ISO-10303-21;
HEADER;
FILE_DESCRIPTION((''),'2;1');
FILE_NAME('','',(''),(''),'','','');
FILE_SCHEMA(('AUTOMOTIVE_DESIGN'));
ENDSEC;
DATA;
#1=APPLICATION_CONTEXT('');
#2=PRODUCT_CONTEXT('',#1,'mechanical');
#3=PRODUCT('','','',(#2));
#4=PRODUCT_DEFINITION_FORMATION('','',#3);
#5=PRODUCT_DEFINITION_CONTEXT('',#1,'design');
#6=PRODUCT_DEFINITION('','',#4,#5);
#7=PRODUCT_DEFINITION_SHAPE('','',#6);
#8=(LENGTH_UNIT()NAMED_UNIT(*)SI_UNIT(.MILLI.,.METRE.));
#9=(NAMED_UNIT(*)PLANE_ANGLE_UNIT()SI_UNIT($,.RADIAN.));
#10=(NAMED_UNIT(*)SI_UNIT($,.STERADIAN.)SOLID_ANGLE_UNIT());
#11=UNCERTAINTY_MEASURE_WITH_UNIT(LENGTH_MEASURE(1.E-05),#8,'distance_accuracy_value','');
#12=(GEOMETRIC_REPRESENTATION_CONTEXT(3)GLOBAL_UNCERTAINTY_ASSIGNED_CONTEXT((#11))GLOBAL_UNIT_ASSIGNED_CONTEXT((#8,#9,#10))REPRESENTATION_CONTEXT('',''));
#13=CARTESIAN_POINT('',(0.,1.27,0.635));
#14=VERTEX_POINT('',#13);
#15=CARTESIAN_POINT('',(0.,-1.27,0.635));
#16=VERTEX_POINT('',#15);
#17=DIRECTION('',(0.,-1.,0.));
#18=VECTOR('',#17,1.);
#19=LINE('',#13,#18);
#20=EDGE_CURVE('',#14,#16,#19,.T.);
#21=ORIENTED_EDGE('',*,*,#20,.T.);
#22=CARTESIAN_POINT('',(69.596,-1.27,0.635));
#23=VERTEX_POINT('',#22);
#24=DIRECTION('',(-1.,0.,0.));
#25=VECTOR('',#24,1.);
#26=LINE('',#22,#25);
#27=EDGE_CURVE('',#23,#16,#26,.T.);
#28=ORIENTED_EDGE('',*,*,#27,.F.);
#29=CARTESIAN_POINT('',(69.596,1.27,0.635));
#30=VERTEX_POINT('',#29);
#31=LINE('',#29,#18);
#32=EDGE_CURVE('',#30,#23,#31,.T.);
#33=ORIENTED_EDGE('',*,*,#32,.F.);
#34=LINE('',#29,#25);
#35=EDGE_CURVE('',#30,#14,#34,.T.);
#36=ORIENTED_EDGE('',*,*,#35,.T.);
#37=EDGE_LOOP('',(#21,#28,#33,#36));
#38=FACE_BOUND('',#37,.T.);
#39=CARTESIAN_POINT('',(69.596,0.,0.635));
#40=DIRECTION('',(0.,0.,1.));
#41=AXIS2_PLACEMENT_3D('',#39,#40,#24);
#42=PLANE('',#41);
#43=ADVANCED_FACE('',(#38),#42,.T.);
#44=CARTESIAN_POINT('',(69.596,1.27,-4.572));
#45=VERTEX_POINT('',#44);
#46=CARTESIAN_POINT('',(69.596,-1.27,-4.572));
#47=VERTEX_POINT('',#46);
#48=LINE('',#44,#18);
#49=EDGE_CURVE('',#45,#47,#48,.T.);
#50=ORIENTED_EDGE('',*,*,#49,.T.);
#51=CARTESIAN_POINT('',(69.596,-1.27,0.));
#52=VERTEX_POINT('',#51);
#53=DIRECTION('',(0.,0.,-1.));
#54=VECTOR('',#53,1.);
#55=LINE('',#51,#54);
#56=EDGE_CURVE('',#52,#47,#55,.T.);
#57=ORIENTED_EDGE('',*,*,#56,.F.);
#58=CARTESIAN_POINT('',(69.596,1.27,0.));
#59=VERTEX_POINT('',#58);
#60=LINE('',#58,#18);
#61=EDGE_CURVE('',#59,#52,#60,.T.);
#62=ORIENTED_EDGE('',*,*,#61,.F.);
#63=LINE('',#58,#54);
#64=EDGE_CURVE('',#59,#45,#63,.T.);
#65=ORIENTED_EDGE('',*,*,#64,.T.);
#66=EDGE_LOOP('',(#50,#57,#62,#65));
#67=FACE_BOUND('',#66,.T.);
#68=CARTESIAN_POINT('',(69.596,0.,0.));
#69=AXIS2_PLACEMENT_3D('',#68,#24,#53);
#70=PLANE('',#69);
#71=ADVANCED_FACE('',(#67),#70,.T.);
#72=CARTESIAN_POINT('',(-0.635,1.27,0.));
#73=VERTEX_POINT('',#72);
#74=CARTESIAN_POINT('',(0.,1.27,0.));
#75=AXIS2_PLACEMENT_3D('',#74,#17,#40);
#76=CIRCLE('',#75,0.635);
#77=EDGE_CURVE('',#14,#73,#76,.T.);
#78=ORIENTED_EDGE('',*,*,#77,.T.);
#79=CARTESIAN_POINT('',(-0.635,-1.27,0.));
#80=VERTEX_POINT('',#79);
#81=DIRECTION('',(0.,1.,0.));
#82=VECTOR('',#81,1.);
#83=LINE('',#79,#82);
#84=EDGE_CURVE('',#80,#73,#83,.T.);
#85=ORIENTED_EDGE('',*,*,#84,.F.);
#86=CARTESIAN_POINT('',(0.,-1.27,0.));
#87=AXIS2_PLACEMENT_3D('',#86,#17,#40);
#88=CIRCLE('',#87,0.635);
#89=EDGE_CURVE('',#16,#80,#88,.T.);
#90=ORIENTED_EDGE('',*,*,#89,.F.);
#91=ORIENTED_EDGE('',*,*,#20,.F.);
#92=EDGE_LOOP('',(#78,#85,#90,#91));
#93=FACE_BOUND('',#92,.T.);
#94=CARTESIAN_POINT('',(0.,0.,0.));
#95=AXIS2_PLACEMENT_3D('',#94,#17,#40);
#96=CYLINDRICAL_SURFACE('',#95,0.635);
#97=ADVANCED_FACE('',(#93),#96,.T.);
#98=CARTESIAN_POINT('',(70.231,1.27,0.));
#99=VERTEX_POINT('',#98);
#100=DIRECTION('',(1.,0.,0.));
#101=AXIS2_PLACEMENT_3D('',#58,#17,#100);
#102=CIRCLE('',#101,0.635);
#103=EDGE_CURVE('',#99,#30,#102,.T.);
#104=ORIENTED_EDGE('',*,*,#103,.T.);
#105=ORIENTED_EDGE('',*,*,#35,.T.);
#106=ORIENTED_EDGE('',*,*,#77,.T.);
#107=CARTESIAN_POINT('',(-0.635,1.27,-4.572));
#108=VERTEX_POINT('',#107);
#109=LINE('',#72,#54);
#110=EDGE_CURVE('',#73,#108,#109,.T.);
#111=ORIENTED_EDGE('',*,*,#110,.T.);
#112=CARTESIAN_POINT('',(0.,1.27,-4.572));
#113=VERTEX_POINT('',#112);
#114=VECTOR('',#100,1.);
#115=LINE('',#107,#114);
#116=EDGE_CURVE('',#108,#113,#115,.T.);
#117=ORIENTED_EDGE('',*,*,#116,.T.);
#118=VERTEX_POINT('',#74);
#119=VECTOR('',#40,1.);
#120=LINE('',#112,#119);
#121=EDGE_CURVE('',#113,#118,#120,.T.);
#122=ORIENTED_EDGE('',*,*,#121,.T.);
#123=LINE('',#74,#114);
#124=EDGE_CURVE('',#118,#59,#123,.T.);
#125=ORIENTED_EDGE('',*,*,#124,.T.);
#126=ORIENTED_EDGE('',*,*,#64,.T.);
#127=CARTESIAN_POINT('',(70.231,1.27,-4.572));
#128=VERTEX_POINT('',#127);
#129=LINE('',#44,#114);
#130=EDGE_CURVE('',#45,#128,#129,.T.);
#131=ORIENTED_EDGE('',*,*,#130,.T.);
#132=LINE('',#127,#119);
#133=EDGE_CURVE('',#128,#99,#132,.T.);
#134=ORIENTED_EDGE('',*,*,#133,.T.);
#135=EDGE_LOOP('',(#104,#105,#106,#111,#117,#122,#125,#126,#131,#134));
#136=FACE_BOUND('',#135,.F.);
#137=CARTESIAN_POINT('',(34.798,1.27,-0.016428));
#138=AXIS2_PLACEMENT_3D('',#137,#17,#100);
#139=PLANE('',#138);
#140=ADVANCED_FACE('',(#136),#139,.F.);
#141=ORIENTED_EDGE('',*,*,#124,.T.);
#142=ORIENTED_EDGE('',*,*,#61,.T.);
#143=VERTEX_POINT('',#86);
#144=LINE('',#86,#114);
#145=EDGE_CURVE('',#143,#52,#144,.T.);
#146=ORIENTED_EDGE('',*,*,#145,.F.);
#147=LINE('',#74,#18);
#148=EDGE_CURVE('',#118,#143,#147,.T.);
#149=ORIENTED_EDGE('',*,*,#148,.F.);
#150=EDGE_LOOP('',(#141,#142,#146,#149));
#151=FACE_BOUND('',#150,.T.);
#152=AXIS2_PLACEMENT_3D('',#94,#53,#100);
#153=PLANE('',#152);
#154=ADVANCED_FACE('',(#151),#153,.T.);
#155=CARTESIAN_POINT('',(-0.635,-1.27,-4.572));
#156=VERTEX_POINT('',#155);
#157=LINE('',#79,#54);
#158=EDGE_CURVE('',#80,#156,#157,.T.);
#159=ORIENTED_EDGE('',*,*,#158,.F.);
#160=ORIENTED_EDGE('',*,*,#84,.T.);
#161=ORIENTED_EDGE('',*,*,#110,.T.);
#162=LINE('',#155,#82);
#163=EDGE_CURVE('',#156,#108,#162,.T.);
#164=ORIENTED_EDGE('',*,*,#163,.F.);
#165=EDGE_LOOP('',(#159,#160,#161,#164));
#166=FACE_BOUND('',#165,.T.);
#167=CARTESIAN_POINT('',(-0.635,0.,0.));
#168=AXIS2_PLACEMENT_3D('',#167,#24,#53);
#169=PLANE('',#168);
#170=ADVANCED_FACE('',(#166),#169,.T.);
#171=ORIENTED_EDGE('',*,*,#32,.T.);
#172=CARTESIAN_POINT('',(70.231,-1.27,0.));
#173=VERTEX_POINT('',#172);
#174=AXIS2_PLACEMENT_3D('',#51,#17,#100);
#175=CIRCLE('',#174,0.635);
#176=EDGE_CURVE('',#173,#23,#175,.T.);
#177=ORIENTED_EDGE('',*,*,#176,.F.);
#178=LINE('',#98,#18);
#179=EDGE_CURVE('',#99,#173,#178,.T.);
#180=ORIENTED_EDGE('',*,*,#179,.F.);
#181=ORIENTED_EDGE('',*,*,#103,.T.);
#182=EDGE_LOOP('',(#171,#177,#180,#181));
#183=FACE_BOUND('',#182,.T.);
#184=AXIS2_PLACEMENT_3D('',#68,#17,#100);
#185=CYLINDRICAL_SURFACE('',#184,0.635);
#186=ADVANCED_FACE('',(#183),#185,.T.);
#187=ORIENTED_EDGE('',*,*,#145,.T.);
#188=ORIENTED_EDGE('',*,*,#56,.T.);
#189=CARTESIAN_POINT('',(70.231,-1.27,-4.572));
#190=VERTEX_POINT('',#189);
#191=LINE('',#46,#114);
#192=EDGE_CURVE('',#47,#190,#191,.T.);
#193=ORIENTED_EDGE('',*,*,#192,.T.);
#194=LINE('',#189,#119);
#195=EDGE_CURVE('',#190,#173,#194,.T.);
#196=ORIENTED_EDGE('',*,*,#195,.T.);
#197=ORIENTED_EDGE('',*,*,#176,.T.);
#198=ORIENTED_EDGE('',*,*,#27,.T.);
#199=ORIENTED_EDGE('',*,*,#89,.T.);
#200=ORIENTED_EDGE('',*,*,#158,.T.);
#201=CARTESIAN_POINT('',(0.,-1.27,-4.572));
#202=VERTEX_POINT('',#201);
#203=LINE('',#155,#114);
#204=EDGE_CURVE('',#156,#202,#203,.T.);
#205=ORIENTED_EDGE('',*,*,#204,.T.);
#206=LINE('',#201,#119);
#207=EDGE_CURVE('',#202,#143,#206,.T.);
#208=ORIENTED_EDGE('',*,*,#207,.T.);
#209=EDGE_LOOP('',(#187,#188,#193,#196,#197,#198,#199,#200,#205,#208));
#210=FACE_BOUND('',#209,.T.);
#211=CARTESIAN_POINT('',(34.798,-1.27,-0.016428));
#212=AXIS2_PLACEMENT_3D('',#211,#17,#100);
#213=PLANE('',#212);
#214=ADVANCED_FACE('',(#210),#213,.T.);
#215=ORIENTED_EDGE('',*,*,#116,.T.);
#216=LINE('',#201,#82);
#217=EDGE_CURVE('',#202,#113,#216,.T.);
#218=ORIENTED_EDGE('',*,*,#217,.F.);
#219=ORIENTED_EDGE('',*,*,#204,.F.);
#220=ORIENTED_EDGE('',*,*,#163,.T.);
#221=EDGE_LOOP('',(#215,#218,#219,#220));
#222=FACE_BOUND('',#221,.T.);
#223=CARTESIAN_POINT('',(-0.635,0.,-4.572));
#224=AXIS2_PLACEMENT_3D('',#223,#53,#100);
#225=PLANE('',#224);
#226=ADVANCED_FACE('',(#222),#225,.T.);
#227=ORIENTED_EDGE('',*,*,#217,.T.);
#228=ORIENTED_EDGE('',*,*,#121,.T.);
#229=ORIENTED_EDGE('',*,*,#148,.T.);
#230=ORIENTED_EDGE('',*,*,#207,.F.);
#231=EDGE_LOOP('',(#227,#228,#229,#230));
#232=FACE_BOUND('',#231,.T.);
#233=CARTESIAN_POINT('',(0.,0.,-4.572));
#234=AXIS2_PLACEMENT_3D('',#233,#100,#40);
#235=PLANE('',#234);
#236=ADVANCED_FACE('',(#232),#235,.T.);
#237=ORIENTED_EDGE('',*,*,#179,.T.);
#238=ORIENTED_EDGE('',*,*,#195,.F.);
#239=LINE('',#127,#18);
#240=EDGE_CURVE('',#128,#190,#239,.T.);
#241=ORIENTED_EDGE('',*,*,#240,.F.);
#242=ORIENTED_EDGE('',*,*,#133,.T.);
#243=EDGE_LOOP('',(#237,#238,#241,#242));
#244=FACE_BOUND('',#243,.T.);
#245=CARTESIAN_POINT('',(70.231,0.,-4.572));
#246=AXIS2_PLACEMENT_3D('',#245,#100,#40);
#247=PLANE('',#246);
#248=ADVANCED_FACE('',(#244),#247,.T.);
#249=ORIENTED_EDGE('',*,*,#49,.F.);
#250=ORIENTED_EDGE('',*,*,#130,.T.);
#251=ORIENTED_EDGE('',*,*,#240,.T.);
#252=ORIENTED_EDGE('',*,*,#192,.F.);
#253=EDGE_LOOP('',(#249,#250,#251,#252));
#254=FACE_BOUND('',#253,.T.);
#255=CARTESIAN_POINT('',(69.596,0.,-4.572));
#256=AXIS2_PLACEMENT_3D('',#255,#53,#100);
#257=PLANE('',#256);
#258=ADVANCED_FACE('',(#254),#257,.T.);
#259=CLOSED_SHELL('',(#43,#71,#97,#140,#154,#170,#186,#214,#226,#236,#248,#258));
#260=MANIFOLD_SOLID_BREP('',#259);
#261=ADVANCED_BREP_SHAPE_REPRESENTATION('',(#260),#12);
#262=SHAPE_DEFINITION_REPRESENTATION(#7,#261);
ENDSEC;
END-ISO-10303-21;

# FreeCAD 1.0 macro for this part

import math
import FreeCAD as App
import Part
import Sketcher
from FreeCAD import Vector
Q = App.Units.Quantity

doc = App.newDocument("Part")
body = doc.addObject("PartDesign::Body", "Body")

sketch1 = body.newObject("Sketcher::SketchObject", "Sketch")
sketch1.AttachmentSupport = (doc.getObject("XZ_Plane"), [""])
sketch1.MapMode = "FlatFace"
sketch1.addGeometry(Part.LineSegment(Vector(0, -4.6, 0), Vector(0, 0, 0)), False)
sketch1.addGeometry(Part.LineSegment(Vector(0, 0, 0), Vector(69.6, 0, 0)), False)
sketch1.addGeometry(Part.LineSegment(Vector(69.6, 0, 0), Vector(69.6, -4.6, 0)), False)
sketch1.addGeometry(Part.LineSegment(Vector(69.6, -4.6, 0), Vector(70.2, -4.6, 0)), False)
sketch1.addGeometry(Part.LineSegment(Vector(70.2, -4.6, 0), Vector(70.2, 0, 0)), False)
sketch1.addGeometry(Part.ArcOfCircle(Part.Circle(Vector(69.6, 0, 0), Vector(0, 0, 1), 0.6), math.radians(0), math.radians(90)), False)
sketch1.addGeometry(Part.LineSegment(Vector(69.6, 0.6, 0), Vector(0, 0.6, 0)), False)
sketch1.addGeometry(Part.ArcOfCircle(Part.Circle(Vector(0, 0, 0), Vector(0, 0, 1), 0.6), math.radians(90), math.radians(180)), False)
sketch1.addGeometry(Part.LineSegment(Vector(-0.6, 0, 0), Vector(-0.6, -4.6, 0)), False)
sketch1.addGeometry(Part.LineSegment(Vector(-0.6, -4.6, 0), Vector(0, -4.6, 0)), False)
sketch1.addConstraint(Sketcher.Constraint("Coincident", 0, 2, 1, 1))
sketch1.addConstraint(Sketcher.Constraint("Coincident", 1, 2, 2, 1))
sketch1.addConstraint(Sketcher.Constraint("Coincident", 2, 2, 3, 1))
sketch1.addConstraint(Sketcher.Constraint("Coincident", 3, 2, 4, 1))
sketch1.addConstraint(Sketcher.Constraint("Tangent", 4, 2, 5, 1))
sketch1.addConstraint(Sketcher.Constraint("Tangent", 5, 2, 6, 1))
sketch1.addConstraint(Sketcher.Constraint("Tangent", 6, 2, 7, 1))
sketch1.addConstraint(Sketcher.Constraint("Tangent", 7, 2, 8, 1))
sketch1.addConstraint(Sketcher.Constraint("Coincident", 8, 2, 9, 1))
sketch1.addConstraint(Sketcher.Constraint("Coincident", 9, 2, 0, 1))
sketch1.addConstraint(Sketcher.Constraint("Vertical", 0))
sketch1.addConstraint(Sketcher.Constraint("Horizontal", 1))
sketch1.addConstraint(Sketcher.Constraint("Vertical", 2))
sketch1.addConstraint(Sketcher.Constraint("Horizontal", 3))
sketch1.addConstraint(Sketcher.Constraint("Vertical", 4))
sketch1.addConstraint(Sketcher.Constraint("Horizontal", 6))
sketch1.addConstraint(Sketcher.Constraint("Vertical", 8))
sketch1.addConstraint(Sketcher.Constraint("Horizontal", 9))
sketch1.addConstraint(Sketcher.Constraint("Coincident", 7, 3, -1, 1))
sketch1.addConstraint(Sketcher.Constraint("Coincident", 0, 2, -1, 1))
sketch1.addConstraint(Sketcher.Constraint("Coincident", 1, 2, 5, 3))
sketch1.addConstraint(Sketcher.Constraint("Horizontal", 3, 2, 8, 2))
sketch1.addConstraint(Sketcher.Constraint("Radius", 5, Q("0.025 in")))
sketch1.addConstraint(Sketcher.Constraint("DistanceX", 1, 1, 1, 2, Q("2.74 in")))
sketch1.addConstraint(Sketcher.Constraint("DistanceY", 0, 1, 0, 2, Q("0.18 in")))
pad1 = body.newObject("PartDesign::Pad", "Pad")
pad1.Profile = sketch1
pad1.Length = Q("0.1 in")
pad1.Midplane = True

doc.recompute()
